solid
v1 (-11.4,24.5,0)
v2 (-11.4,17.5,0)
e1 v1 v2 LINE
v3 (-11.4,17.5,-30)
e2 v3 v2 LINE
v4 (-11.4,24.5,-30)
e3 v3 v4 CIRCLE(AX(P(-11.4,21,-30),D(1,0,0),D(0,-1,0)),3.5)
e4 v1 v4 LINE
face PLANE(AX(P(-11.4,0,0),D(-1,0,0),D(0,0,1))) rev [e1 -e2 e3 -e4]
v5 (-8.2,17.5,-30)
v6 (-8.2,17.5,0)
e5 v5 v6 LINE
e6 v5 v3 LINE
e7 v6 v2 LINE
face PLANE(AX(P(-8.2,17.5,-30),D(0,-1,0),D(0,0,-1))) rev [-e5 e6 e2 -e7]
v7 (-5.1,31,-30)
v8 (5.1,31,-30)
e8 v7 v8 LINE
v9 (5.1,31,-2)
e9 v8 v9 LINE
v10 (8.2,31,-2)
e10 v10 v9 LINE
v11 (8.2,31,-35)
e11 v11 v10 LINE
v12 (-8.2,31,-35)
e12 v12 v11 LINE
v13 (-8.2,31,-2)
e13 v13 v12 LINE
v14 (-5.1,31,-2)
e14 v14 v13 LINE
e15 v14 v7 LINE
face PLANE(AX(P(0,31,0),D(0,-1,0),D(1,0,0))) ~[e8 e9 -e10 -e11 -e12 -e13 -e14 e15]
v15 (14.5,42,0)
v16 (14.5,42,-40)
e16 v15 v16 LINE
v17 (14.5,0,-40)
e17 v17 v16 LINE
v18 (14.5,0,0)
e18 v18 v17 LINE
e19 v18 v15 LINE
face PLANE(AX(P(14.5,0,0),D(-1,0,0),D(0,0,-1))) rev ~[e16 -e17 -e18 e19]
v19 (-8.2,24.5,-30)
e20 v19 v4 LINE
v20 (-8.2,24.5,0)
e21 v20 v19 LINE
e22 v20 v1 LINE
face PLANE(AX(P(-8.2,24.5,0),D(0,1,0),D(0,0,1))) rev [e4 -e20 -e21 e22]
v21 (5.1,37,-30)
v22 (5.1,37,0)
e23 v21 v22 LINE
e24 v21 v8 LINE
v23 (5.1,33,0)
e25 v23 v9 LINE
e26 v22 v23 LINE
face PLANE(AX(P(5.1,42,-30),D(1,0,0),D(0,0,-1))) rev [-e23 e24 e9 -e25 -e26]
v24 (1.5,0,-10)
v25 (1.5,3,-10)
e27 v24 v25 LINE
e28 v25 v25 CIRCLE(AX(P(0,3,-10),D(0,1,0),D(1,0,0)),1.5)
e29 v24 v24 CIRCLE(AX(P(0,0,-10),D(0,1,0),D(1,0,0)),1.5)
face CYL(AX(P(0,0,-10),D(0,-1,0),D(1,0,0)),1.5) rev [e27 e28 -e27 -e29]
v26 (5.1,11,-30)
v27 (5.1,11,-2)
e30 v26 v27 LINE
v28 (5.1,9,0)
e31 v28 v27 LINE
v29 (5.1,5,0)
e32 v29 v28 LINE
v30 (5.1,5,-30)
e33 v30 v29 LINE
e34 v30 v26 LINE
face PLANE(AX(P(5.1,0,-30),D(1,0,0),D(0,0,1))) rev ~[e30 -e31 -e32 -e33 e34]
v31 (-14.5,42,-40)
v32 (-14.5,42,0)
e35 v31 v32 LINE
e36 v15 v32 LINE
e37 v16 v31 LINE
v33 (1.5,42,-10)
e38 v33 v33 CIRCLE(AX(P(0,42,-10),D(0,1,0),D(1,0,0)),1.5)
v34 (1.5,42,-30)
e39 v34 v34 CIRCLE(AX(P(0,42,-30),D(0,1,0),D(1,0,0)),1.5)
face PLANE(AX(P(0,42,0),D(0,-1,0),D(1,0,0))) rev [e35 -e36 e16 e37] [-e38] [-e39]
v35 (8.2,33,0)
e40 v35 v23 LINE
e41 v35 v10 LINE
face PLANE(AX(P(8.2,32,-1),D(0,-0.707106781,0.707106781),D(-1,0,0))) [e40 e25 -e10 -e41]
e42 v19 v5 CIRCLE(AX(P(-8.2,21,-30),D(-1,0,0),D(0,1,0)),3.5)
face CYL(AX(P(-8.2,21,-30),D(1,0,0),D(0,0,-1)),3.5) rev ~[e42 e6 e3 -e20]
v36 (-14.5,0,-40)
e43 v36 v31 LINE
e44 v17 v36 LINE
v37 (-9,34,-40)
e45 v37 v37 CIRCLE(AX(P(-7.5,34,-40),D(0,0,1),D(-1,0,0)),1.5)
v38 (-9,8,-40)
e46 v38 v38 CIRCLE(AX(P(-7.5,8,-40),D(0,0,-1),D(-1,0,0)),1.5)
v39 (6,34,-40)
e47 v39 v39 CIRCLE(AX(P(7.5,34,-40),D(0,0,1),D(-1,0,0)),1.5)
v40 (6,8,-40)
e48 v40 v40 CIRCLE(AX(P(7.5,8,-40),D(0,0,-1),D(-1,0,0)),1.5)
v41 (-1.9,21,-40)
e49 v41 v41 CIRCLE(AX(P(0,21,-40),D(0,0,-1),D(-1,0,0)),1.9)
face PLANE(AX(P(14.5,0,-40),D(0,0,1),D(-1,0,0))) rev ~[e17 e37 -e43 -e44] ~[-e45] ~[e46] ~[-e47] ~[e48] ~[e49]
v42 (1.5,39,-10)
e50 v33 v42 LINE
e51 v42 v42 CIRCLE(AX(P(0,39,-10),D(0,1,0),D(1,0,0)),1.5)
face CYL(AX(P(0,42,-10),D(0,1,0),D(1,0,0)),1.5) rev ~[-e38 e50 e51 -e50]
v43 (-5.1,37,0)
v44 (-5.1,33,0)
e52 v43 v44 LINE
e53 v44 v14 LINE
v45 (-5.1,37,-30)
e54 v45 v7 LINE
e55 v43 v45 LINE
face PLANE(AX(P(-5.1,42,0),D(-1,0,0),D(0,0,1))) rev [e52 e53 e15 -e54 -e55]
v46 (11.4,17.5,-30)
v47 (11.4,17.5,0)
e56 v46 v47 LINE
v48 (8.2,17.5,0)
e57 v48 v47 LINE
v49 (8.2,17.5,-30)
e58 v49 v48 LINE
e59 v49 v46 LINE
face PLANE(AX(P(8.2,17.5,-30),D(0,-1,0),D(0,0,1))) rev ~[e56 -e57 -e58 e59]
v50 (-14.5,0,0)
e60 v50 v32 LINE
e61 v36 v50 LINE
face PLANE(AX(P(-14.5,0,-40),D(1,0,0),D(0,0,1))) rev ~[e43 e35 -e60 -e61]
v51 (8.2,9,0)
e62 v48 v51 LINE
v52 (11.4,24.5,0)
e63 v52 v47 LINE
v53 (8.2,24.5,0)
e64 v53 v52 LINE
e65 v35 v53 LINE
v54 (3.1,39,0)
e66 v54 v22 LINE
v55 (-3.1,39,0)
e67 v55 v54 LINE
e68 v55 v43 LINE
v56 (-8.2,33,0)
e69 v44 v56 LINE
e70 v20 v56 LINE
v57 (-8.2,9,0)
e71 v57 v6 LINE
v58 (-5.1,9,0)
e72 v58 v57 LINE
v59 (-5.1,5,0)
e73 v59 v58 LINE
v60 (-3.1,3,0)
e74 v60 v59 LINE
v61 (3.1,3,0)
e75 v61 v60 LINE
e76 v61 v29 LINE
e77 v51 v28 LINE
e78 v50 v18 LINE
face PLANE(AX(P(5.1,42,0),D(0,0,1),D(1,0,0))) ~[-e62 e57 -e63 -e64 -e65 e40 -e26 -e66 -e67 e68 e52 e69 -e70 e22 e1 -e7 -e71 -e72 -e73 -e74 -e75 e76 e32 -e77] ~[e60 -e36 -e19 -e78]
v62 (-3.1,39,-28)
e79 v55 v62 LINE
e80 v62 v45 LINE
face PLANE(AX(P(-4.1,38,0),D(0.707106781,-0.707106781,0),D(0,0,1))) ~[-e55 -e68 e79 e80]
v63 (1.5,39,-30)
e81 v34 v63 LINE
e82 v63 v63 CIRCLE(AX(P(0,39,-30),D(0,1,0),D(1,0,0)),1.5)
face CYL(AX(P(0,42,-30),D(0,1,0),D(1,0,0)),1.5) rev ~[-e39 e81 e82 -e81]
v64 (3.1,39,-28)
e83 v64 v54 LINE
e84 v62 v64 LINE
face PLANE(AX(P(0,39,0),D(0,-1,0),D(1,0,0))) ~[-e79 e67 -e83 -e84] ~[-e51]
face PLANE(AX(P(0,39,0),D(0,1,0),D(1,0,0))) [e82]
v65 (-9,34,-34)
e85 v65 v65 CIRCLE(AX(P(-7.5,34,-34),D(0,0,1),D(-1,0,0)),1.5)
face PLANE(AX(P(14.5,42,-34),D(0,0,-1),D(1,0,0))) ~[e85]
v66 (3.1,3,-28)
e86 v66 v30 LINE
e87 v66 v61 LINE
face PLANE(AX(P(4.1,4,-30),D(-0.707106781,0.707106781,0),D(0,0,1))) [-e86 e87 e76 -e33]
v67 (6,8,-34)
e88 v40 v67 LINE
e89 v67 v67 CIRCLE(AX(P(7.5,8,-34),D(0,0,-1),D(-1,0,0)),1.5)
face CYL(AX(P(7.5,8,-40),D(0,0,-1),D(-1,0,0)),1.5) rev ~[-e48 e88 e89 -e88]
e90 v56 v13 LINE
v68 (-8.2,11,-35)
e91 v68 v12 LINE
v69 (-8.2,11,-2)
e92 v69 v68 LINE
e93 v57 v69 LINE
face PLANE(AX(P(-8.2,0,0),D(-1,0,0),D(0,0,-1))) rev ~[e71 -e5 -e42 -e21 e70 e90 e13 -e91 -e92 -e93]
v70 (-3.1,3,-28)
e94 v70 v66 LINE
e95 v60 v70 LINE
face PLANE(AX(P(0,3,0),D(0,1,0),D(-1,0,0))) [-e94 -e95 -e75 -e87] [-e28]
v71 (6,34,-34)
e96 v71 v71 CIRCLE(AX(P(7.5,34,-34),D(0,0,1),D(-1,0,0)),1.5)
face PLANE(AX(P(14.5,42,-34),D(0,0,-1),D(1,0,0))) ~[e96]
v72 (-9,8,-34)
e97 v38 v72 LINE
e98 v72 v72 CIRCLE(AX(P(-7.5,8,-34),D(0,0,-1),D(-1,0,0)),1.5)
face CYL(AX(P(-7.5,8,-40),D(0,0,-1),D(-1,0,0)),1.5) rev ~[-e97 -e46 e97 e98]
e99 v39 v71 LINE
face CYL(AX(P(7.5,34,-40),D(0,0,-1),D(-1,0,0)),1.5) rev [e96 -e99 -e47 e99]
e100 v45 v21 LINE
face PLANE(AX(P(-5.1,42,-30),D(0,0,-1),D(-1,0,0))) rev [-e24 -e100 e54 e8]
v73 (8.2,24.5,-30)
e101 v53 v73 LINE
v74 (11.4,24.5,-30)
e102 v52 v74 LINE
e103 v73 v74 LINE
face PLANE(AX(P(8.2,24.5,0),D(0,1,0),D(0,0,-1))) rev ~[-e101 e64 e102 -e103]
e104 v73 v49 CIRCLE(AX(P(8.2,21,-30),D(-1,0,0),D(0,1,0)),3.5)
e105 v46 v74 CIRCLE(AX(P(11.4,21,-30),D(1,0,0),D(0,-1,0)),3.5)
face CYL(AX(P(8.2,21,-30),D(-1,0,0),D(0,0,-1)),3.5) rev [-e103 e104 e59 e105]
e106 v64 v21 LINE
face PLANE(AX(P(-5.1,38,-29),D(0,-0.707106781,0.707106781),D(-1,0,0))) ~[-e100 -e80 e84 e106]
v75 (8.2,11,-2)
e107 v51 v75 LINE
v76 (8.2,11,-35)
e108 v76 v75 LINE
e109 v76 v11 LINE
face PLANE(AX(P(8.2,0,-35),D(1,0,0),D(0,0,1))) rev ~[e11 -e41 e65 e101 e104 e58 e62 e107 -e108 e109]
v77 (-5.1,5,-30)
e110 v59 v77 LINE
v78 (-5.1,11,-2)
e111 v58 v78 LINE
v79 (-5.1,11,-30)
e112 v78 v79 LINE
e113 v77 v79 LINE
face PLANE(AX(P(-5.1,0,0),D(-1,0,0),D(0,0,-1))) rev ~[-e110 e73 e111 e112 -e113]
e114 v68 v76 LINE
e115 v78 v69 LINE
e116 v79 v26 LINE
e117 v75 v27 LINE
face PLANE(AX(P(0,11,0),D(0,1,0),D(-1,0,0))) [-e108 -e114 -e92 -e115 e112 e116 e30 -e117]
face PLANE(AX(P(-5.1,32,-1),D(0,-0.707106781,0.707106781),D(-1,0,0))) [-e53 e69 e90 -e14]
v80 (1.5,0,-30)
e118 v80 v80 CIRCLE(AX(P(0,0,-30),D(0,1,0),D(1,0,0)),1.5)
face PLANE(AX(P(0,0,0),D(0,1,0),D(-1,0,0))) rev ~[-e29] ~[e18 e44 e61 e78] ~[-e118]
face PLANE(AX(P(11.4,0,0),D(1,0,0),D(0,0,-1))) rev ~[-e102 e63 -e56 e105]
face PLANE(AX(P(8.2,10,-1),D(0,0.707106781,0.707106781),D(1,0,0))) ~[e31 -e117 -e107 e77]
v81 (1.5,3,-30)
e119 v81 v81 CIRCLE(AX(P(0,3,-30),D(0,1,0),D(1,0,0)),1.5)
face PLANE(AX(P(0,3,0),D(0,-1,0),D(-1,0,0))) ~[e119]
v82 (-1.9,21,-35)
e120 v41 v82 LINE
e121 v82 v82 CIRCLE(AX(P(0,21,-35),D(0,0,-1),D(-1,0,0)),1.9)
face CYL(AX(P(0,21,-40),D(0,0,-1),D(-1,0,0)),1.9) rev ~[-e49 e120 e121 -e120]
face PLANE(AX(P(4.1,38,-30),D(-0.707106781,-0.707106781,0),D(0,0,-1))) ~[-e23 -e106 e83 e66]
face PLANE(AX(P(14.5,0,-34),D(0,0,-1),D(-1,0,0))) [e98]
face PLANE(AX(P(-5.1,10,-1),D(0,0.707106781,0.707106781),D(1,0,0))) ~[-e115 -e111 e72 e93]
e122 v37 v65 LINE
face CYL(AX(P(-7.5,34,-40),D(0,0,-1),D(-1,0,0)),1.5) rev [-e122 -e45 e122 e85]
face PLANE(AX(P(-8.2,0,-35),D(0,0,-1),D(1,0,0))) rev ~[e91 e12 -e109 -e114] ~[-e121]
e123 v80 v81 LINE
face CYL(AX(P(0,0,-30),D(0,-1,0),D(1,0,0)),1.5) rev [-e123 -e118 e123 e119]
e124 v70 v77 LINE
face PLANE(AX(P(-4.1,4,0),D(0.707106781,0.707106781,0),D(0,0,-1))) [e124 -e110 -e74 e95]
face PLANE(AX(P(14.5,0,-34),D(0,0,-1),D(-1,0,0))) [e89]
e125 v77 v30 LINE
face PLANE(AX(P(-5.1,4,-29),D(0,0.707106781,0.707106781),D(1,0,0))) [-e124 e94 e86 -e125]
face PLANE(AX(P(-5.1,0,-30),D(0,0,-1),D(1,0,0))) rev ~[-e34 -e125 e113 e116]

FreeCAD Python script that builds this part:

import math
import FreeCAD as App
import Part
import Sketcher

V = App.Vector
Q = App.Units.Quantity


def edges_at(feature, points):
    """Names of the edges that pass closest to the given points."""
    edges = feature.Shape.Edges
    near = lambda p: min(range(len(edges)), key=lambda i: edges[i].distToShape(Part.Vertex(*p))[0])
    return sorted({f"Edge{near(p) + 1}" for p in points})


def add_polygon(sketch, points):
    """Adds a closed chain of lines whose ends are joined by coincident constraints."""
    first, n = sketch.GeometryCount, len(points)
    for a, b in zip(points, points[1:] + points[:1]):
        sketch.addGeometry(Part.LineSegment(App.Vector(*a, 0), App.Vector(*b, 0)), False)
    for i in range(n):
        sketch.addConstraint(Sketcher.Constraint("Coincident", first + i, 2, first + (i + 1) % n, 1))

doc = App.newDocument("Part")
body = doc.addObject("PartDesign::Body", "Body")

sketch1 = body.newObject("Sketcher::SketchObject", "Sketch")
sketch1.AttachmentSupport = (doc.getObject("XZ_Plane"), [""])
sketch1.MapMode = "FlatFace"
add_polygon(sketch1, [(-14.5, 0), (-8.2, 0), (-8.2, -35), (8.2, -35), (8.2, 0), (14.5, 0), (14.5, -40), (-14.5, -40)])
sketch1.addConstraint(Sketcher.Constraint("Horizontal", 0))
sketch1.addConstraint(Sketcher.Constraint("Vertical", 1))
sketch1.addConstraint(Sketcher.Constraint("Horizontal", 2))
sketch1.addConstraint(Sketcher.Constraint("Vertical", 3))
sketch1.addConstraint(Sketcher.Constraint("Horizontal", 4))
sketch1.addConstraint(Sketcher.Constraint("Vertical", 5))
sketch1.addConstraint(Sketcher.Constraint("Horizontal", 6))
sketch1.addConstraint(Sketcher.Constraint("Vertical", 7))
sketch1.addConstraint(Sketcher.Constraint("Symmetric", 0, 2, 3, 2, -1, 1))
sketch1.addConstraint(Sketcher.Constraint("Symmetric", 4, 2, 7, 2, -2))
sketch1.addConstraint(Sketcher.Constraint("DistanceX", 6, 2, 6, 1, Q("29 mm")))
sketch1.addConstraint(Sketcher.Constraint("DistanceY", 5, 2, 5, 1, Q("40 mm")))
sketch1.addConstraint(Sketcher.Constraint("DistanceX", 2, 1, 2, 2, Q("16.4 mm")))
sketch1.addConstraint(Sketcher.Constraint("DistanceY", 5, 2, 2, 2, Q("5 mm")))
pad1 = body.newObject("PartDesign::Pad", "Pad")
pad1.Profile = sketch1
pad1.Length = 42
pad1.Reversed = True

sketch2 = body.newObject("Sketcher::SketchObject", "Sketch001")
sketch2.AttachmentSupport = (doc.getObject("YZ_Plane"), [""])
sketch2.MapMode = "FlatFace"
sketch2.AttachmentOffset = App.Placement(V(0, 0, 8.2), App.Rotation())
sketch2.addGeometry(Part.ArcOfCircle(Part.Circle(V(21, 0, 0), V(0, 0, 1), 3.5), math.radians(0), math.radians(180)), False)
sketch2.addGeometry(Part.LineSegment(V(17.5, 0, 0), V(17.5, -30, 0)), False)
sketch2.addGeometry(Part.ArcOfCircle(Part.Circle(V(21, -30, 0), V(0, 0, 1), 3.5), math.radians(180), math.radians(360)), False)
sketch2.addGeometry(Part.LineSegment(V(24.5, -30, 0), V(24.5, 0, 0)), False)
sketch2.addConstraint(Sketcher.Constraint("Tangent", 0, 2, 1, 1))
sketch2.addConstraint(Sketcher.Constraint("Tangent", 1, 2, 2, 1))
sketch2.addConstraint(Sketcher.Constraint("Tangent", 2, 2, 3, 1))
sketch2.addConstraint(Sketcher.Constraint("Tangent", 3, 2, 0, 1))
sketch2.addConstraint(Sketcher.Constraint("Vertical", 1))
sketch2.addConstraint(Sketcher.Constraint("Vertical", 3))
sketch2.addConstraint(Sketcher.Constraint("PointOnObject", 0, 3, -1))
sketch2.addConstraint(Sketcher.Constraint("Radius", 0, Q("3.5 mm")))
sketch2.addConstraint(Sketcher.Constraint("DistanceY", 1, 2, 1, 1, Q("30 mm")))
sketch2.addConstraint(Sketcher.Constraint("DistanceX", -1, 1, 0, 3, Q("21 mm")))
pocket1 = body.newObject("PartDesign::Pocket", "Pocket")
pocket1.Profile = sketch2
pocket1.Length = 3.2
pocket1.Reversed = True

sketch3 = body.newObject("Sketcher::SketchObject", "Sketch002")
sketch3.AttachmentSupport = (doc.getObject("XY_Plane"), [""])
sketch3.MapMode = "FlatFace"
sketch3.AttachmentOffset = App.Placement(V(0, 0, -40), App.Rotation())
sketch3.addGeometry(Part.Circle(V(0, 21, 0), V(0, 0, 1), 1.9), False)
sketch3.addConstraint(Sketcher.Constraint("PointOnObject", 0, 3, -2))
sketch3.addConstraint(Sketcher.Constraint("Diameter", 0, Q("3.8 mm")))
sketch3.addConstraint(Sketcher.Constraint("DistanceY", -1, 1, 0, 3, Q("21 mm")))
pocket2 = body.newObject("PartDesign::Pocket", "Pocket001")
pocket2.Profile = sketch3
pocket2.Length = 10
pocket2.Reversed = True

sketch4 = body.newObject("Sketcher::SketchObject", "Sketch003")
sketch4.AttachmentSupport = (doc.getObject("XZ_Plane"), [""])
sketch4.MapMode = "FlatFace"
add_polygon(sketch4, [(-8.2, -35), (-8.2, 0), (-5.1, 0), (-5.1, -30), (5.1, -30), (5.1, 0), (8.2, 0), (8.2, -35)])
sketch4.addConstraint(Sketcher.Constraint("Vertical", 0))
sketch4.addConstraint(Sketcher.Constraint("Horizontal", 1))
sketch4.addConstraint(Sketcher.Constraint("Vertical", 2))
sketch4.addConstraint(Sketcher.Constraint("Horizontal", 3))
sketch4.addConstraint(Sketcher.Constraint("Vertical", 4))
sketch4.addConstraint(Sketcher.Constraint("Horizontal", 5))
sketch4.addConstraint(Sketcher.Constraint("Vertical", 6))
sketch4.addConstraint(Sketcher.Constraint("Horizontal", 7))
sketch4.addConstraint(Sketcher.Constraint("Symmetric", 1, 2, 4, 2, -1, 1))
sketch4.addConstraint(Sketcher.Constraint("Symmetric", 0, 2, 5, 2, -2))
sketch4.addConstraint(Sketcher.Constraint("DistanceX", 3, 1, 3, 2, Q("10.2 mm")))
sketch4.addConstraint(Sketcher.Constraint("DistanceX", 7, 2, 7, 1, Q("16.4 mm")))
sketch4.addConstraint(Sketcher.Constraint("DistanceY", 6, 2, 3, 2, Q("5 mm")))
sketch4.addConstraint(Sketcher.Constraint("DistanceY", 0, 1, 0, 2, Q("35 mm")))
pad2 = body.newObject("PartDesign::Pad", "Pad001")
pad2.Profile = sketch4
pad2.Length = 11
pad2.Reversed = True

sketch5 = body.newObject("Sketcher::SketchObject", "Sketch004")
sketch5.AttachmentSupport = (doc.getObject("XZ_Plane"), [""])
sketch5.MapMode = "FlatFace"
add_polygon(sketch5, [(-5.1, -30), (-5.1, 0), (5.1, 0), (5.1, -30)])
sketch5.addConstraint(Sketcher.Constraint("Vertical", 0))
sketch5.addConstraint(Sketcher.Constraint("Horizontal", 1))
sketch5.addConstraint(Sketcher.Constraint("Vertical", 2))
sketch5.addConstraint(Sketcher.Constraint("Horizontal", 3))
sketch5.addConstraint(Sketcher.Constraint("Symmetric", 0, 2, 1, 2, -1, 1))
sketch5.addConstraint(Sketcher.Constraint("DistanceX", 1, 1, 1, 2, Q("10.2 mm")))
sketch5.addConstraint(Sketcher.Constraint("DistanceY", 0, 1, 0, 2, Q("30 mm")))
pad3 = body.newObject("PartDesign::Pad", "Pad002")
pad3.Profile = sketch5
pad3.Length = 3
pad3.Reversed = True
doc.recompute()

chamfer = body.newObject("PartDesign::Chamfer", "Chamfer")
chamfer.Base = (pad3, edges_at(pad3, [(-5.1, 3, -15), (0, 3, -30), (5.1, 3, -15)]))
chamfer.Size = 2
doc.recompute()

chamfer2 = body.newObject("PartDesign::Chamfer", "Chamfer001")
chamfer2.Base = (chamfer, edges_at(chamfer, [(-6.65, 11, 0), (6.65, 11, 0)]))
chamfer2.Size = 2
doc.recompute()

datumplane = body.newObject("PartDesign::Plane", "DatumPlane")
datumplane.AttachmentSupport = (doc.getObject("XZ_Plane"), [""])
datumplane.MapMode = "FlatFace"
datumplane.AttachmentOffset = App.Placement(V(0, 0, -21), App.Rotation())
mirrored = body.newObject("PartDesign::Mirrored", "Mirrored")
mirrored.Originals = [pad2, pad3, chamfer, chamfer2]
mirrored.MirrorPlane = (datumplane, [""])
body.Tip = mirrored

sketch6 = body.newObject("Sketcher::SketchObject", "Sketch005")
sketch6.AttachmentSupport = (doc.getObject("XZ_Plane"), [""])
sketch6.MapMode = "FlatFace"
sketch6.AttachmentOffset = App.Placement(V(0, 0, -42), App.Rotation())
sketch6.addGeometry(Part.Circle(V(0, -10, 0), V(0, 0, 1), 1.5), False)
sketch6.addGeometry(Part.Circle(V(0, -30, 0), V(0, 0, 1), 1.5), False)
sketch6.addConstraint(Sketcher.Constraint("Equal", 0, 1))
sketch6.addConstraint(Sketcher.Constraint("PointOnObject", 0, 3, -2))
sketch6.addConstraint(Sketcher.Constraint("PointOnObject", 1, 3, -2))
sketch6.addConstraint(Sketcher.Constraint("Diameter", 0, Q("3 mm")))
sketch6.addConstraint(Sketcher.Constraint("DistanceY", 0, 3, -1, 1, Q("10 mm")))
sketch6.addConstraint(Sketcher.Constraint("DistanceY", 1, 3, 0, 3, Q("20 mm")))
pocket3 = body.newObject("PartDesign::Pocket", "Pocket002")
pocket3.Profile = sketch6
pocket3.Length = 3
pocket3.Reversed = True

sketch7 = body.newObject("Sketcher::SketchObject", "Sketch006")
sketch7.AttachmentSupport = (doc.getObject("XY_Plane"), [""])
sketch7.MapMode = "FlatFace"
sketch7.AttachmentOffset = App.Placement(V(0, 0, -40), App.Rotation())
sketch7.addGeometry(Part.Circle(V(7.5, 8, 0), V(0, 0, 1), 1.5), False)
sketch7.addGeometry(Part.Circle(V(-7.5, 8, 0), V(0, 0, 1), 1.5), False)
sketch7.addConstraint(Sketcher.Constraint("Equal", 0, 1))
sketch7.addConstraint(Sketcher.Constraint("Symmetric", 0, 3, 1, 3, -2))
sketch7.addConstraint(Sketcher.Constraint("Diameter", 0, Q("3 mm")))
sketch7.addConstraint(Sketcher.Constraint("DistanceY", -1, 1, 0, 3, Q("8 mm")))
sketch7.addConstraint(Sketcher.Constraint("DistanceX", 1, 3, 0, 3, Q("15 mm")))
pocket4 = body.newObject("PartDesign::Pocket", "Pocket003")
pocket4.Profile = sketch7
pocket4.Length = 6
pocket4.Reversed = True
doc.recompute()

datumplane2 = body.newObject("PartDesign::Plane", "DatumPlane001")
datumplane2.AttachmentSupport = (doc.getObject("XZ_Plane"), [""])
datumplane2.MapMode = "FlatFace"
datumplane2.AttachmentOffset = App.Placement(V(0, 0, -21), App.Rotation())
mirrored2 = body.newObject("PartDesign::Mirrored", "Mirrored001")
mirrored2.Originals = [pocket3, pocket4]
mirrored2.MirrorPlane = (datumplane2, [""])
body.Tip = mirrored2
doc.recompute()

mirrored3 = body.newObject("PartDesign::Mirrored", "Mirrored002")
mirrored3.Originals = [pocket1]
mirrored3.MirrorPlane = (doc.getObject("YZ_Plane"), [""])
body.Tip = mirrored3

doc.recompute()
